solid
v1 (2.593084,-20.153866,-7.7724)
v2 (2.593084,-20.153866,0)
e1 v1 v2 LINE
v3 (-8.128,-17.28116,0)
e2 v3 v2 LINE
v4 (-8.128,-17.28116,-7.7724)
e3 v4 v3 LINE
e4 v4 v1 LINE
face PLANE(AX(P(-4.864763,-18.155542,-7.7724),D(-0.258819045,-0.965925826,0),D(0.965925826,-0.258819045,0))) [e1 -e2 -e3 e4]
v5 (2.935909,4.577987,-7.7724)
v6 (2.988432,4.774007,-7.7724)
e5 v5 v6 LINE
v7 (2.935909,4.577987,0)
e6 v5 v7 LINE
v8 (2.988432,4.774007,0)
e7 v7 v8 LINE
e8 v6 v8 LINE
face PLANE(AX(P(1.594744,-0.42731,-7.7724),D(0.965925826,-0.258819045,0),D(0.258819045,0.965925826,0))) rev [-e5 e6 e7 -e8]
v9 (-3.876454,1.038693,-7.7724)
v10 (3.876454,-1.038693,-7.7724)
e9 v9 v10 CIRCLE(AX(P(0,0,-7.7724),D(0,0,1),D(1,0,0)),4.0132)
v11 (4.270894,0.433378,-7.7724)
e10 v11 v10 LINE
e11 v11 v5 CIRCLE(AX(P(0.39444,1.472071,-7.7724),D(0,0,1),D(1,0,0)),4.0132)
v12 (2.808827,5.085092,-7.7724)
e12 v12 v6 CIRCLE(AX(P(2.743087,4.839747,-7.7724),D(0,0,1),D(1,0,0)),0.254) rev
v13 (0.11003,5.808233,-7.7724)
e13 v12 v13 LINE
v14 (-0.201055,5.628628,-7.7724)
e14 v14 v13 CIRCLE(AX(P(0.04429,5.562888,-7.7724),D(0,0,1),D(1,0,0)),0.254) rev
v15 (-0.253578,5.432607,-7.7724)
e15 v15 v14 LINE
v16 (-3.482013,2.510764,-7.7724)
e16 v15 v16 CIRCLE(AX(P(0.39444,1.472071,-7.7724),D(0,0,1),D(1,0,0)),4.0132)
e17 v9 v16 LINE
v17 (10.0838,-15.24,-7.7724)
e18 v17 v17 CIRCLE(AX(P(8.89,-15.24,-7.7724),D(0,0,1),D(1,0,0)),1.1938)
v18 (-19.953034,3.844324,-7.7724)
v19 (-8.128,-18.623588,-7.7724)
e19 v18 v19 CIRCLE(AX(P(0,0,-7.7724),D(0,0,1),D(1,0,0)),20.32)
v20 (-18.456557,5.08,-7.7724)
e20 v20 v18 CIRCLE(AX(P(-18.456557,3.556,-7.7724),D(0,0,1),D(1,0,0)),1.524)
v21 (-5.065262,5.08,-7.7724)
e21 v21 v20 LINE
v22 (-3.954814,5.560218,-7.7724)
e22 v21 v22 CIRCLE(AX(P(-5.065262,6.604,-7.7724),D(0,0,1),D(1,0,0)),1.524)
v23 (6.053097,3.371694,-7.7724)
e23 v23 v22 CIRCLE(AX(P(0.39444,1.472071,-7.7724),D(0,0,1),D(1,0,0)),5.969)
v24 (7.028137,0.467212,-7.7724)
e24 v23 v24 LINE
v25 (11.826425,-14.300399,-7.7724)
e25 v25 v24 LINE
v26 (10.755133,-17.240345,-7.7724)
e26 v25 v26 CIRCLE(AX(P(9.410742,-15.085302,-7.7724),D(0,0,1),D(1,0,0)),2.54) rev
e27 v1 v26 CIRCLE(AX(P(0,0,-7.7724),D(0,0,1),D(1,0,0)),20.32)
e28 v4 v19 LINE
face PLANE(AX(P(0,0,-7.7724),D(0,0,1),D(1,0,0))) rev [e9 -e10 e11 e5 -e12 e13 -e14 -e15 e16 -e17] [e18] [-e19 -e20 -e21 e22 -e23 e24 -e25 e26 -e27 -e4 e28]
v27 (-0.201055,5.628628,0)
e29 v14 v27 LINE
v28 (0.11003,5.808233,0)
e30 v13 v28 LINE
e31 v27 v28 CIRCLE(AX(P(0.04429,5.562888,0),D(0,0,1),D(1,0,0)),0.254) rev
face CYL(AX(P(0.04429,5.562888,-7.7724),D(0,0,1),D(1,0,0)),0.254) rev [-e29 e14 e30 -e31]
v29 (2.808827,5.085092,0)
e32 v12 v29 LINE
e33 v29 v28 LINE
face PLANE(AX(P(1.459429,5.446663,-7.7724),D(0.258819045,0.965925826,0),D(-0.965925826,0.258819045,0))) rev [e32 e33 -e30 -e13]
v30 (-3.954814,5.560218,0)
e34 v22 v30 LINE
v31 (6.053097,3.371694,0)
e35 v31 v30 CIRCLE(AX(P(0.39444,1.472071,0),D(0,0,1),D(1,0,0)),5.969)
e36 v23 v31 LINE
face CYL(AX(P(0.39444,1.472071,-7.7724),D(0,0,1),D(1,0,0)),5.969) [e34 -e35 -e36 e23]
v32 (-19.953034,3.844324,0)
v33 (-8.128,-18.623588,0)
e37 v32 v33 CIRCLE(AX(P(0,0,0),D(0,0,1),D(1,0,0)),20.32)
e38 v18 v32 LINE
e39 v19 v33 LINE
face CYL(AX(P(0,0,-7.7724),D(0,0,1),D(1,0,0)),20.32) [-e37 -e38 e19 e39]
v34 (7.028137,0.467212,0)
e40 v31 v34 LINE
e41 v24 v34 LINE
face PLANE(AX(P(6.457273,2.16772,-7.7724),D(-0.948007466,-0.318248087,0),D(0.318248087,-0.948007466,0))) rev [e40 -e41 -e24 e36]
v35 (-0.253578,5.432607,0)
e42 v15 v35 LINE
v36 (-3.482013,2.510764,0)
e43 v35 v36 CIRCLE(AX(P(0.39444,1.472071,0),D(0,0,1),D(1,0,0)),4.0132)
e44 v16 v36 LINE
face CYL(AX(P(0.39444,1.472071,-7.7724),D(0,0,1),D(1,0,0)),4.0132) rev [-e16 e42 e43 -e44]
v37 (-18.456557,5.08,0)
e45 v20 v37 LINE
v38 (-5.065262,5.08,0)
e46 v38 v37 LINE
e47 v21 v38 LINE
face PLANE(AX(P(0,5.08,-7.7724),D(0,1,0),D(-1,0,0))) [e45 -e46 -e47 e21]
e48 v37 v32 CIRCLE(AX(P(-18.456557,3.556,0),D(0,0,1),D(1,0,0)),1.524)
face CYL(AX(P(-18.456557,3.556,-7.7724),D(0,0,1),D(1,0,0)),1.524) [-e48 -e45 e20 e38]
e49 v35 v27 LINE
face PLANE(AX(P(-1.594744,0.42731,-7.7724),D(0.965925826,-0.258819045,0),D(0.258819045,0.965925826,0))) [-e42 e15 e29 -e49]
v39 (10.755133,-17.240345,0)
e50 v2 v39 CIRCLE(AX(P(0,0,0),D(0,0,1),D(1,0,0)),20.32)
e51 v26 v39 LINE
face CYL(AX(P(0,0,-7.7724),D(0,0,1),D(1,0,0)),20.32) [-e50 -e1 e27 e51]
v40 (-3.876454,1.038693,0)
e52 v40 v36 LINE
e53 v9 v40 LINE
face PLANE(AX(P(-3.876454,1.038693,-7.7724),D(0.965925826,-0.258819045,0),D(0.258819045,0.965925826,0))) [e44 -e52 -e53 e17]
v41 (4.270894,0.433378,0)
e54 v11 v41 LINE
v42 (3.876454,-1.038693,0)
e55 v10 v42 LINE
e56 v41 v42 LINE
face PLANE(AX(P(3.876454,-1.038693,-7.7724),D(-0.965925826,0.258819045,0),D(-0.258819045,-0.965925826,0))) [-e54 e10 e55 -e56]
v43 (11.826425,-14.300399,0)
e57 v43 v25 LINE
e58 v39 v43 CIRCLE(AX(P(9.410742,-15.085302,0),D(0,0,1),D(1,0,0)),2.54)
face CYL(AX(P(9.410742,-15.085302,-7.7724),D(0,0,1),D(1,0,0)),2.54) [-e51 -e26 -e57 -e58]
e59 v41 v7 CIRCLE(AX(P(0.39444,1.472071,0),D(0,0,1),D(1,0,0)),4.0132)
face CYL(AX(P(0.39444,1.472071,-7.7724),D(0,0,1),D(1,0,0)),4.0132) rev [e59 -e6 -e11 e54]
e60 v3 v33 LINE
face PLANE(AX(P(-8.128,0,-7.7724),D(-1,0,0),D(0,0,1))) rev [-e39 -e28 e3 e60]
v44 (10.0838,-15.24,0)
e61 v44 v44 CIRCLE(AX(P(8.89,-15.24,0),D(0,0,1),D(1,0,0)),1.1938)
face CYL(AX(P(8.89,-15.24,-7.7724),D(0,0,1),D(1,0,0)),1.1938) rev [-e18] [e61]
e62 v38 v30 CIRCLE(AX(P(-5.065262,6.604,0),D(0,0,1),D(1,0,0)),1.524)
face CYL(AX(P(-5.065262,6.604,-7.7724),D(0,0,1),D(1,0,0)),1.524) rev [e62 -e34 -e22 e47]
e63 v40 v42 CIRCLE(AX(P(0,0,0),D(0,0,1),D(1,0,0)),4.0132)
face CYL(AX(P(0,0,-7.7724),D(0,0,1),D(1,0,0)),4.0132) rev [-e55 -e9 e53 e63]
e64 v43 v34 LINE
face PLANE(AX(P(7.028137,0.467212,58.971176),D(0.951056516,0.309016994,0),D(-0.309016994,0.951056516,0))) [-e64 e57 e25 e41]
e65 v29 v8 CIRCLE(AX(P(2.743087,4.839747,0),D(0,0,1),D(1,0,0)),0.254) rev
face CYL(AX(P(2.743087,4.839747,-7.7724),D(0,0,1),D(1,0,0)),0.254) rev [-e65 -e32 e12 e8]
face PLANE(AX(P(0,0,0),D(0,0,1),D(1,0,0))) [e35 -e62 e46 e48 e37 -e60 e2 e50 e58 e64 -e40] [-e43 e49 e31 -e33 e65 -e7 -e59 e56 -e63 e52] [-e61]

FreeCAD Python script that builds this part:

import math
import FreeCAD as App
import Part
import Sketcher

V = App.Vector
Q = App.Units.Quantity


def edges_at(feature, points):
    """Names of the edges that pass closest to the given points."""
    edges = feature.Shape.Edges
    near = lambda p: min(range(len(edges)), key=lambda i: edges[i].distToShape(Part.Vertex(*p))[0])
    return sorted({f"Edge{near(p) + 1}" for p in points})


def add_polygon(sketch, points):
    """Adds a closed chain of lines whose ends are joined by coincident constraints."""
    first, n = sketch.GeometryCount, len(points)
    for a, b in zip(points, points[1:] + points[:1]):
        sketch.addGeometry(Part.LineSegment(App.Vector(*a, 0), App.Vector(*b, 0)), False)
    for i in range(n):
        sketch.addConstraint(Sketcher.Constraint("Coincident", first + i, 2, first + (i + 1) % n, 1))

doc = App.newDocument("Part")
params = doc.addObject("Spreadsheet::Sheet", "Params")
for row, (alias, value) in enumerate([
    ("sketch1_radius", "0.8 in"),
    ("sketch1_radius2", "0.06 in"),
    ("sketch1_radius3", "0.01 in"),
    ("sketch1_diameter", "0.094 in"),
    ("sketch1_radius4", "0.015 in"),
    ("pad1_length", "0.306 in"),
    ("fillet_radius", "0.1 in"),
], start=1):
    params.set(f"A{row}", alias)
    params.set(f"B{row}", "=" + value)
    params.setAlias(f"B{row}", alias)

body = doc.addObject("PartDesign::Body", "Body")

sketch1 = body.newObject("Sketcher::SketchObject", "Sketch")
sketch1.AttachmentSupport = (doc.getObject("XY_Plane"), [""])
sketch1.MapMode = "FlatFace"
sketch1.addGeometry(Part.LineSegment(V(-5.07, 5.08, 0), V(-18.46, 5.08, 0)), False)
sketch1.addGeometry(Part.ArcOfCircle(Part.Circle(V(-18.46, 3.56, 0), V(0, 0, 1), 1.52), math.radians(90), math.radians(169)), False)
sketch1.addGeometry(Part.ArcOfCircle(Part.Circle(V(0, 0, 0), V(0, 0, 1), 20.32), math.radians(169), math.radians(246)), False)
sketch1.addGeometry(Part.LineSegment(V(-8.13, -18.62, 0), V(-8.13, -17.28, 0)), False)
sketch1.addGeometry(Part.LineSegment(V(-8.13, -17.28, 0), V(2.59, -20.15, 0)), False)
sketch1.addGeometry(Part.ArcOfCircle(Part.Circle(V(0, 0, 0), V(0, 0, 1), 20.32), math.radians(-83), math.radians(-32)), False)
sketch1.addGeometry(Part.LineSegment(V(17.15, -10.9, 0), V(12.94, -3.62, 0)), False)
sketch1.addGeometry(Part.ArcOfCircle(Part.Circle(V(12.61, -3.81, 0), V(0, 0, 1), 0.38), math.radians(30), math.radians(92)), False)
sketch1.addGeometry(Part.ArcOfCircle(Part.Circle(V(12.45, 2.29, 0), V(0, 0, 1), 5.71), math.radians(-161), math.radians(-88)), False)
sketch1.addGeometry(Part.LineSegment(V(7.03, 0.47, 0), V(6.05, 3.37, 0)), False)
sketch1.addGeometry(Part.ArcOfCircle(Part.Circle(V(0.39, 1.47, 0), V(0, 0, 1), 5.97), math.radians(19), math.radians(137)), False)
sketch1.addGeometry(Part.ArcOfCircle(Part.Circle(V(-5.07, 6.6, 0), V(0, 0, 1), 1.52), math.radians(-90), math.radians(-43)), False)
sketch1.addGeometry(Part.Circle(V(8.89, -15.24, 0), V(0, 0, 1), 1.19), False)
sketch1.addGeometry(Part.ArcOfCircle(Part.Circle(V(0, 0, 0), V(0, 0, 1), 4.01), math.radians(165), math.radians(345)), False)
sketch1.addGeometry(Part.LineSegment(V(-3.88, 1.04, 0), V(-3.48, 2.51, 0)), False)
sketch1.addGeometry(Part.ArcOfCircle(Part.Circle(V(0.39, 1.47, 0), V(0, 0, 1), 4.01), math.radians(99), math.radians(165)), False)
sketch1.addGeometry(Part.LineSegment(V(-0.25, 5.43, 0), V(-0.2, 5.63, 0)), False)
sketch1.addGeometry(Part.ArcOfCircle(Part.Circle(V(0.04, 5.56, 0), V(0, 0, 1), 0.25), math.radians(75), math.radians(165)), False)
sketch1.addGeometry(Part.LineSegment(V(0.11, 5.81, 0), V(2.81, 5.09, 0)), False)
sketch1.addGeometry(Part.ArcOfCircle(Part.Circle(V(2.74, 4.84, 0), V(0, 0, 1), 0.25), math.radians(-15), math.radians(75)), False)
sketch1.addGeometry(Part.LineSegment(V(2.99, 4.77, 0), V(2.94, 4.58, 0)), False)
sketch1.addGeometry(Part.ArcOfCircle(Part.Circle(V(0.39, 1.47, 0), V(0, 0, 1), 4.01), math.radians(-15), math.radians(51)), False)
sketch1.addGeometry(Part.LineSegment(V(4.27, 0.43, 0), V(3.88, -1.04, 0)), False)
sketch1.addConstraint(Sketcher.Constraint("Tangent", 0, 2, 1, 1))
sketch1.addConstraint(Sketcher.Constraint("Tangent", 1, 2, 2, 1))
sketch1.addConstraint(Sketcher.Constraint("Coincident", 2, 2, 3, 1))
sketch1.addConstraint(Sketcher.Constraint("Coincident", 3, 2, 4, 1))
sketch1.addConstraint(Sketcher.Constraint("Coincident", 4, 2, 5, 1))
sketch1.addConstraint(Sketcher.Constraint("Coincident", 5, 2, 6, 1))
sketch1.addConstraint(Sketcher.Constraint("Tangent", 6, 2, 7, 1))
sketch1.addConstraint(Sketcher.Constraint("Tangent", 7, 2, 8, 2))
sketch1.addConstraint(Sketcher.Constraint("Tangent", 8, 1, 9, 1))
sketch1.addConstraint(Sketcher.Constraint("Tangent", 9, 2, 10, 1))
sketch1.addConstraint(Sketcher.Constraint("Tangent", 10, 2, 11, 2))
sketch1.addConstraint(Sketcher.Constraint("Tangent", 11, 1, 0, 1))
sketch1.addConstraint(Sketcher.Constraint("Tangent", 13, 1, 14, 1))
sketch1.addConstraint(Sketcher.Constraint("Tangent", 14, 2, 15, 2))
sketch1.addConstraint(Sketcher.Constraint("Coincident", 15, 1, 16, 1))
sketch1.addConstraint(Sketcher.Constraint("Tangent", 16, 2, 17, 2))
sketch1.addConstraint(Sketcher.Constraint("Tangent", 17, 1, 18, 1))
sketch1.addConstraint(Sketcher.Constraint("Tangent", 18, 2, 19, 2))
sketch1.addConstraint(Sketcher.Constraint("Tangent", 19, 1, 20, 1))
sketch1.addConstraint(Sketcher.Constraint("Coincident", 20, 2, 21, 2))
sketch1.addConstraint(Sketcher.Constraint("Tangent", 21, 1, 22, 1))
sketch1.addConstraint(Sketcher.Constraint("Tangent", 22, 2, 13, 2))
sketch1.addConstraint(Sketcher.Constraint("Horizontal", 0))
sketch1.addConstraint(Sketcher.Constraint("Vertical", 3))
sketch1.addConstraint(Sketcher.Constraint("Coincident", 2, 3, -1, 1))
sketch1.addConstraint(Sketcher.Constraint("Coincident", 5, 3, -1, 1))
sketch1.addConstraint(Sketcher.Constraint("Coincident", 13, 3, -1, 1))
sketch1.addConstraint(Sketcher.Constraint("Coincident", 15, 3, 10, 3))
sketch1.addConstraint(Sketcher.Constraint("Coincident", 21, 3, 10, 3))
sketch1.addConstraint(Sketcher.Constraint("Equal", 2, 5))
sketch1.addConstraint(Sketcher.Constraint("Equal", 1, 11))
sketch1.addConstraint(Sketcher.Constraint("Equal", 13, 15))
sketch1.addConstraint(Sketcher.Constraint("Equal", 17, 19))
sketch1.addConstraint(Sketcher.Constraint("Equal", 15, 21))
sketch1.addConstraint(Sketcher.Constraint("Perpendicular", 4, 14))
sketch1.addConstraint(Sketcher.Constraint("Parallel", 14, 16))
sketch1.addConstraint(Sketcher.Constraint("Perpendicular", 16, 18))
sketch1.addConstraint(Sketcher.Constraint("Perpendicular", 18, 20))
sketch1.addConstraint(Sketcher.Constraint("Equal", 16, 20))
sketch1.addConstraint(Sketcher.Constraint("Radius", 2, Q("0.8 in")))
sketch1.addConstraint(Sketcher.Constraint("Radius", 1, Q("0.06 in")))
sketch1.addConstraint(Sketcher.Constraint("Radius", 17, Q("0.01 in")))
sketch1.addConstraint(Sketcher.Constraint("Diameter", 12, Q("0.094 in")))
sketch1.addConstraint(Sketcher.Constraint("Angle", 4, Q("-15 deg")))
sketch1.addConstraint(Sketcher.Constraint("Angle", 6, Q("120 deg")))
sketch1.addConstraint(Sketcher.Constraint("Radius", 7, Q("0.015 in")))
sketch1.addConstraint(Sketcher.Constraint("Radius", 8, Q("0.225 in")))
sketch1.addConstraint(Sketcher.Constraint("Radius", 10, Q("0.235 in")))
sketch1.addConstraint(Sketcher.Constraint("Radius", 13, Q("0.158 in")))
sketch1.addConstraint(Sketcher.Constraint("DistanceY", 12, 3, -1, 1, Q("0.6 in")))
sketch1.addConstraint(Sketcher.Constraint("DistanceY", -1, 1, 0, 2, Q("0.2 in")))
sketch1.addConstraint(Sketcher.Constraint("Distance", 14, Q("0.06 in")))
sketch1.addConstraint(Sketcher.Constraint("Distance", 18, Q("0.11 in")))
sketch1.addConstraint(Sketcher.Constraint("DistanceX", -1, 1, 8, 3, Q("0.49 in")))
sketch1.addConstraint(Sketcher.Constraint("DistanceY", -1, 1, 8, 3, Q("0.09 in")))
sketch1.addConstraint(Sketcher.Constraint("DistanceX", -1, 1, 12, 3, Q("0.35 in")))
sketch1.addConstraint(Sketcher.Constraint("DistanceX", 2, 2, -1, 1, Q("0.32 in")))
sketch1.addConstraint(Sketcher.Constraint("DistanceX", 7, 3, 5, 2, Q("4.536599 mm")))
sketch1.addConstraint(Sketcher.Constraint("DistanceY", 20, 2, 17, 3, Q("0.984901 mm")))
sketch1.addConstraint(Sketcher.Constraint("DistanceY", 3, 1, 3, 2, Q("1.342428 mm")))
sketch1.setExpression("Constraints[39]", "Params.sketch1_radius")
sketch1.setExpression("Constraints[40]", "Params.sketch1_radius2")
sketch1.setExpression("Constraints[41]", "Params.sketch1_radius3")
sketch1.setExpression("Constraints[42]", "Params.sketch1_diameter")
sketch1.setExpression("Constraints[45]", "Params.sketch1_radius4")
pad1 = body.newObject("PartDesign::Pad", "Pad")
pad1.Profile = sketch1
pad1.setExpression("Length", "Params.pad1_length")
pad1.Reversed = True

sketch2 = body.newObject("Sketcher::SketchObject", "Sketch001")
sketch2.AttachmentSupport = (doc.getObject("XY_Plane"), [""])
sketch2.MapMode = "FlatFace"
add_polygon(sketch2, [(-21, 87), (7, 0), (12, -16), (40, -102), (213, -46), (151, 143)])
sketch2.addConstraint(Sketcher.Constraint("Parallel", 0, 1))
sketch2.addConstraint(Sketcher.Constraint("Parallel", 1, 2))
sketch2.addConstraint(Sketcher.Constraint("Perpendicular", 2, 3))
sketch2.addConstraint(Sketcher.Constraint("Perpendicular", 3, 4))
sketch2.addConstraint(Sketcher.Constraint("Perpendicular", 4, 5))
sketch2.addConstraint(Sketcher.Constraint("Equal", 0, 2))
sketch2.addConstraint(Sketcher.Constraint("Angle", 0, Q("-72 deg")))
sketch2.addConstraint(Sketcher.Constraint("DistanceX", 1, 2, 4, 2, Q("138.987302 mm")))
sketch2.addConstraint(Sketcher.Constraint("Distance", 4, Q("198.652279 mm")))
sketch2.addConstraint(Sketcher.Constraint("DistanceY", 1, 2, -1, 1, Q("16.091448 mm")))
sketch2.addConstraint(Sketcher.Constraint("DistanceX", -1, 1, 2, 2, Q("40.41172 mm")))
sketch2.addConstraint(Sketcher.Constraint("DistanceY", 2, 2, -1, 1, Q("102.27689 mm")))
pocket1 = body.newObject("PartDesign::Pocket", "Pocket")
pocket1.Profile = sketch2
pocket1.Type = "ThroughAll"
pocket1.Midplane = True
doc.recompute()

fillet = body.newObject("PartDesign::Fillet", "Fillet")
fillet.Base = (pocket1, edges_at(pocket1, [(12.408, -16.091, -3.886)]))
fillet.setExpression("Radius", "Params.fillet_radius")

doc.recompute()
